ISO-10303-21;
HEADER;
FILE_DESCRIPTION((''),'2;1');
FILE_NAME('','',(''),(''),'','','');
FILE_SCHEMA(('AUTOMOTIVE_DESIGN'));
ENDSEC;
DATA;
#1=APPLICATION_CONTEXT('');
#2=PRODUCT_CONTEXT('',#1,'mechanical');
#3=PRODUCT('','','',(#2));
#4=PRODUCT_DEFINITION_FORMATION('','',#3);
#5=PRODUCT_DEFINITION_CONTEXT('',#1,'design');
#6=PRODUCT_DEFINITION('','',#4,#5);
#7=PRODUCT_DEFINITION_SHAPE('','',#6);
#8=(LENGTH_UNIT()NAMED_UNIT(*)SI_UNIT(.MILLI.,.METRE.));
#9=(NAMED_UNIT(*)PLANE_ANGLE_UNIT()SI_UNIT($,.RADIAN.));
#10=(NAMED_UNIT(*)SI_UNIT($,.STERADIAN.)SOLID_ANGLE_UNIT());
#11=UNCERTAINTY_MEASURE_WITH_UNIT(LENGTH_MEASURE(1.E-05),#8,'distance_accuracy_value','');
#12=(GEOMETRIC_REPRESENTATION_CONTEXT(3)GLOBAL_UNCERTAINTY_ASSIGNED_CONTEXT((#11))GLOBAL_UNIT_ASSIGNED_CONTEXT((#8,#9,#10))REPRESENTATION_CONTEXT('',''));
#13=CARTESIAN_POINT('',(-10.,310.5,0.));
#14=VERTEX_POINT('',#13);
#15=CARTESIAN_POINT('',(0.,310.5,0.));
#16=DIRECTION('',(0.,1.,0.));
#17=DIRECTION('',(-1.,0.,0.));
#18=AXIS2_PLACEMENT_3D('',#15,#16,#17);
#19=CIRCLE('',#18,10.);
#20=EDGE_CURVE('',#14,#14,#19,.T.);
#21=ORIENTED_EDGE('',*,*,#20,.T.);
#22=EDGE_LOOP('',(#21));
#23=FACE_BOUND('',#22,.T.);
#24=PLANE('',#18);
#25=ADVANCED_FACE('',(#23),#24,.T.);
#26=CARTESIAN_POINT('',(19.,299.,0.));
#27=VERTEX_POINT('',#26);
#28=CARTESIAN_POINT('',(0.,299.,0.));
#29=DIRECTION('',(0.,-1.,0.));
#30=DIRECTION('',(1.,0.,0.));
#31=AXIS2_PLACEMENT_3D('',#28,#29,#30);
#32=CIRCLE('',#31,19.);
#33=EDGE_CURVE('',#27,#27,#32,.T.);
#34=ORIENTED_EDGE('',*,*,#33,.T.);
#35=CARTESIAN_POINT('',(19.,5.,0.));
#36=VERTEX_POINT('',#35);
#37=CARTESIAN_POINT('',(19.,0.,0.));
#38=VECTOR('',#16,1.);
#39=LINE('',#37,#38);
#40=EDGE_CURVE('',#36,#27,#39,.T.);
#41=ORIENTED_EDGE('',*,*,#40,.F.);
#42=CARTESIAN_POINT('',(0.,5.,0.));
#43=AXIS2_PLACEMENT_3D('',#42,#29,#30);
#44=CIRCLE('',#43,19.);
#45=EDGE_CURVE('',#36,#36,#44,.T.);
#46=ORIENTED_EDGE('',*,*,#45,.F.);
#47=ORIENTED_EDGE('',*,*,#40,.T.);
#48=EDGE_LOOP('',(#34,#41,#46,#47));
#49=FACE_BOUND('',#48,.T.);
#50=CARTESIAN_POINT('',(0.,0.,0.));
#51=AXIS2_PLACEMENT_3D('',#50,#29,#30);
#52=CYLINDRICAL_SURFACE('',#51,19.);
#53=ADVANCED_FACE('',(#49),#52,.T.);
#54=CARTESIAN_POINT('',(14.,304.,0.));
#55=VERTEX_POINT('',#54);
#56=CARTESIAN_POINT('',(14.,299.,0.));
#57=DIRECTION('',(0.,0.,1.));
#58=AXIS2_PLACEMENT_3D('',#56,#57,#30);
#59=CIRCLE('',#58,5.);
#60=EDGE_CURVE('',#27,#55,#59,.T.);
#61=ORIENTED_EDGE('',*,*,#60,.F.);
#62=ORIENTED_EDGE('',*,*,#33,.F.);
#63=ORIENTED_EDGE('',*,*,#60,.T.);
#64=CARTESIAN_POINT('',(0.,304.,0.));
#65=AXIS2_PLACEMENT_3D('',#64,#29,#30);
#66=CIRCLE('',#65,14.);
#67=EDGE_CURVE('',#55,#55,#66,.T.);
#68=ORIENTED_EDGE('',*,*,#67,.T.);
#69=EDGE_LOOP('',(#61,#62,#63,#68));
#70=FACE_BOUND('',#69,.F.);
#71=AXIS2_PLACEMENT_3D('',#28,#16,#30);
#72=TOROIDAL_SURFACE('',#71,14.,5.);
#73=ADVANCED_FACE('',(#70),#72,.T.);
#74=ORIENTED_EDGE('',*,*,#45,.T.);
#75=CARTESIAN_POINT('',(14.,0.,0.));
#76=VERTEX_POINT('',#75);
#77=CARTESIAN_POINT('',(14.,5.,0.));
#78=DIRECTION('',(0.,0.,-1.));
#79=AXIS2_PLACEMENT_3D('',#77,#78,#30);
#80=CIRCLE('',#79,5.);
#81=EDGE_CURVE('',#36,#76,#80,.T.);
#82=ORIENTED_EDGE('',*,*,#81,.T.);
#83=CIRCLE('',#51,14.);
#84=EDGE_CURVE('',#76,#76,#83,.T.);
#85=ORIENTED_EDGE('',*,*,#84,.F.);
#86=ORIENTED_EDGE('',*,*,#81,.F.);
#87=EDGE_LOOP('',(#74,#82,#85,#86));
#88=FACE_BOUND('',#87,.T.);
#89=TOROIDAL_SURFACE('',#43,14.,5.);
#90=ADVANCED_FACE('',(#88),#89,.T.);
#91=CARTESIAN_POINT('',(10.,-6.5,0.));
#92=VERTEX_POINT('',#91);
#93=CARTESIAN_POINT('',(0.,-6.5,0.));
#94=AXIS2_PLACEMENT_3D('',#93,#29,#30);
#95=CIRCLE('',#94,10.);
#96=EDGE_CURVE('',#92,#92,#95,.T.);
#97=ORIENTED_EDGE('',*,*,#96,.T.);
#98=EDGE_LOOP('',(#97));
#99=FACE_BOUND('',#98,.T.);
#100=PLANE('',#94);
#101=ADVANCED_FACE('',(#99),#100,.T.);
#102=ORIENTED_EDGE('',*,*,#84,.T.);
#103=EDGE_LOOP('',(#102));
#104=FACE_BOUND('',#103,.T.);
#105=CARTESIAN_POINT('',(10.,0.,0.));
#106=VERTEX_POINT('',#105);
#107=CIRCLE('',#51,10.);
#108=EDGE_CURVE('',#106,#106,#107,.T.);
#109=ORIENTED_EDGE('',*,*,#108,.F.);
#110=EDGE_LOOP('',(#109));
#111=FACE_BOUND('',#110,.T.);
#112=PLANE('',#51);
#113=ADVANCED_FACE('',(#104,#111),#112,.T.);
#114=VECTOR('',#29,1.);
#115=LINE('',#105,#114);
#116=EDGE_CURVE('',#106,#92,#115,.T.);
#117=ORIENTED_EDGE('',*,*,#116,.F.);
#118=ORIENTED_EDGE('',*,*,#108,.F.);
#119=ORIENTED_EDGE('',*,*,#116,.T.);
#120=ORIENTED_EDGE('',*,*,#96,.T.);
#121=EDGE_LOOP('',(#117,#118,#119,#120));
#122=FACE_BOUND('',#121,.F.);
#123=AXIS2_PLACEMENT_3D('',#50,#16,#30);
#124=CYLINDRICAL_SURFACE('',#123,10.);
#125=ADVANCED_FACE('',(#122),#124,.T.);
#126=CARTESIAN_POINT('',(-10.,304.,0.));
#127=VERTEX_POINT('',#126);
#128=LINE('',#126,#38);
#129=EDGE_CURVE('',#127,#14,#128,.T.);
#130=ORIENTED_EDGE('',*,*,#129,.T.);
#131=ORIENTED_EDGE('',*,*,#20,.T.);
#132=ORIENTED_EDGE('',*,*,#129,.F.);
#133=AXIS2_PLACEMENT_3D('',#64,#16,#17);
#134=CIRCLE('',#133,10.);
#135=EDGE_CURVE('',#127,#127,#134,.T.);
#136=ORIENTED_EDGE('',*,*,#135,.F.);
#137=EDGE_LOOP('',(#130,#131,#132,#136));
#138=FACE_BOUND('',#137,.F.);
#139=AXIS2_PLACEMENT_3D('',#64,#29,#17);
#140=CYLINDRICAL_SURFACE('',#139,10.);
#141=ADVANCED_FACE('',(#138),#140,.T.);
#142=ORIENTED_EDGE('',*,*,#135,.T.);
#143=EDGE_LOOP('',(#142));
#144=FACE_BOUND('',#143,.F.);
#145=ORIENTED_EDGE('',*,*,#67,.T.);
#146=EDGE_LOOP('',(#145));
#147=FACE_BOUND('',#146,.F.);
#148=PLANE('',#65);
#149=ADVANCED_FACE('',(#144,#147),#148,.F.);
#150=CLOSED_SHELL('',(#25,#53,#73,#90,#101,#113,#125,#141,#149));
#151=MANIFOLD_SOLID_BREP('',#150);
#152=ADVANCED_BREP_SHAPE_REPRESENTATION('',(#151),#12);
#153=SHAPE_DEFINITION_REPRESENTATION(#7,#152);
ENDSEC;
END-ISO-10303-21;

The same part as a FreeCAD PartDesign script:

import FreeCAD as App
import Part
import Sketcher

V = App.Vector


def edges_at(feature, points):
    """Names of the edges that pass closest to the given points."""
    edges = feature.Shape.Edges
    near = lambda p: min(range(len(edges)), key=lambda i: edges[i].distToShape(Part.Vertex(*p))[0])
    return sorted({f"Edge{near(p) + 1}" for p in points})

doc = App.newDocument("Part")
params = doc.addObject("Spreadsheet::Sheet", "Params")
for row, (alias, value) in enumerate([
    ("sketch1_diameter", "20 mm"),
    ("pad1_length", "6.5 mm"),
    ("sketch2_diameter", "38 mm"),
    ("pad2_length", "304 mm"),
    ("sketch3_diameter", "20 mm"),
    ("pad3_length", "6.5 mm"),
    ("fillet_radius", "5 mm"),
], start=1):
    params.set(f"A{row}", alias)
    params.set(f"B{row}", "=" + value)
    params.setAlias(f"B{row}", alias)

body = doc.addObject("PartDesign::Body", "Body")

sketch1 = doc.addObject("Sketcher::SketchObject", "Sketch")
body.addObject(sketch1)
sketch1.AttachmentSupport = (doc.XZ_Plane, [""])
sketch1.MapMode = "FlatFace"
sketch1.addGeometry(Part.Circle(V(0, 0, 0), V(0, 0, 1), 10), False)
sketch1.addConstraint([
    Sketcher.Constraint("Coincident", 0, 3, -1, 1),
    Sketcher.Constraint("Diameter", 0, 20.0),
])
sketch1.setExpression("Constraints[1]", "Params.sketch1_diameter")
pad1 = doc.addObject("PartDesign::Pad", "Pad")
body.addObject(pad1)
pad1.Profile = sketch1
pad1.setExpression("Length", "Params.pad1_length")

sketch2 = doc.addObject("Sketcher::SketchObject", "Sketch001")
body.addObject(sketch2)
sketch2.AttachmentSupport = (doc.XZ_Plane, [""])
sketch2.MapMode = "FlatFace"
sketch2.addGeometry(Part.Circle(V(0, 0, 0), V(0, 0, 1), 19), False)
sketch2.addConstraint([
    Sketcher.Constraint("Coincident", 0, 3, -1, 1),
    Sketcher.Constraint("Diameter", 0, 38.0),
])
sketch2.setExpression("Constraints[1]", "Params.sketch2_diameter")
pad2 = doc.addObject("PartDesign::Pad", "Pad001")
body.addObject(pad2)
pad2.Profile = sketch2
pad2.setExpression("Length", "Params.pad2_length")
pad2.Reversed = True

sketch3 = doc.addObject("Sketcher::SketchObject", "Sketch002")
body.addObject(sketch3)
sketch3.AttachmentSupport = (doc.XZ_Plane, [""])
sketch3.MapMode = "FlatFace"
sketch3.AttachmentOffset = App.Placement(V(0, 0, -304), App.Rotation())
sketch3.addGeometry(Part.Circle(V(0, 0, 0), V(0, 0, 1), 10), False)
sketch3.addConstraint([
    Sketcher.Constraint("Coincident", 0, 3, -1, 1),
    Sketcher.Constraint("Diameter", 0, 20.0),
])
sketch3.setExpression("Constraints[1]", "Params.sketch3_diameter")
pad3 = doc.addObject("PartDesign::Pad", "Pad002")
body.addObject(pad3)
pad3.Profile = sketch3
pad3.setExpression("Length", "Params.pad3_length")
pad3.Reversed = True
doc.recompute()

fillet = doc.addObject("PartDesign::Fillet", "Fillet")
body.addObject(fillet)
fillet.Base = (pad3, edges_at(pad3, [(-19, 304, 0), (-19, 0, 0)]))
fillet.setExpression("Radius", "Params.fillet_radius")

doc.recompute()
